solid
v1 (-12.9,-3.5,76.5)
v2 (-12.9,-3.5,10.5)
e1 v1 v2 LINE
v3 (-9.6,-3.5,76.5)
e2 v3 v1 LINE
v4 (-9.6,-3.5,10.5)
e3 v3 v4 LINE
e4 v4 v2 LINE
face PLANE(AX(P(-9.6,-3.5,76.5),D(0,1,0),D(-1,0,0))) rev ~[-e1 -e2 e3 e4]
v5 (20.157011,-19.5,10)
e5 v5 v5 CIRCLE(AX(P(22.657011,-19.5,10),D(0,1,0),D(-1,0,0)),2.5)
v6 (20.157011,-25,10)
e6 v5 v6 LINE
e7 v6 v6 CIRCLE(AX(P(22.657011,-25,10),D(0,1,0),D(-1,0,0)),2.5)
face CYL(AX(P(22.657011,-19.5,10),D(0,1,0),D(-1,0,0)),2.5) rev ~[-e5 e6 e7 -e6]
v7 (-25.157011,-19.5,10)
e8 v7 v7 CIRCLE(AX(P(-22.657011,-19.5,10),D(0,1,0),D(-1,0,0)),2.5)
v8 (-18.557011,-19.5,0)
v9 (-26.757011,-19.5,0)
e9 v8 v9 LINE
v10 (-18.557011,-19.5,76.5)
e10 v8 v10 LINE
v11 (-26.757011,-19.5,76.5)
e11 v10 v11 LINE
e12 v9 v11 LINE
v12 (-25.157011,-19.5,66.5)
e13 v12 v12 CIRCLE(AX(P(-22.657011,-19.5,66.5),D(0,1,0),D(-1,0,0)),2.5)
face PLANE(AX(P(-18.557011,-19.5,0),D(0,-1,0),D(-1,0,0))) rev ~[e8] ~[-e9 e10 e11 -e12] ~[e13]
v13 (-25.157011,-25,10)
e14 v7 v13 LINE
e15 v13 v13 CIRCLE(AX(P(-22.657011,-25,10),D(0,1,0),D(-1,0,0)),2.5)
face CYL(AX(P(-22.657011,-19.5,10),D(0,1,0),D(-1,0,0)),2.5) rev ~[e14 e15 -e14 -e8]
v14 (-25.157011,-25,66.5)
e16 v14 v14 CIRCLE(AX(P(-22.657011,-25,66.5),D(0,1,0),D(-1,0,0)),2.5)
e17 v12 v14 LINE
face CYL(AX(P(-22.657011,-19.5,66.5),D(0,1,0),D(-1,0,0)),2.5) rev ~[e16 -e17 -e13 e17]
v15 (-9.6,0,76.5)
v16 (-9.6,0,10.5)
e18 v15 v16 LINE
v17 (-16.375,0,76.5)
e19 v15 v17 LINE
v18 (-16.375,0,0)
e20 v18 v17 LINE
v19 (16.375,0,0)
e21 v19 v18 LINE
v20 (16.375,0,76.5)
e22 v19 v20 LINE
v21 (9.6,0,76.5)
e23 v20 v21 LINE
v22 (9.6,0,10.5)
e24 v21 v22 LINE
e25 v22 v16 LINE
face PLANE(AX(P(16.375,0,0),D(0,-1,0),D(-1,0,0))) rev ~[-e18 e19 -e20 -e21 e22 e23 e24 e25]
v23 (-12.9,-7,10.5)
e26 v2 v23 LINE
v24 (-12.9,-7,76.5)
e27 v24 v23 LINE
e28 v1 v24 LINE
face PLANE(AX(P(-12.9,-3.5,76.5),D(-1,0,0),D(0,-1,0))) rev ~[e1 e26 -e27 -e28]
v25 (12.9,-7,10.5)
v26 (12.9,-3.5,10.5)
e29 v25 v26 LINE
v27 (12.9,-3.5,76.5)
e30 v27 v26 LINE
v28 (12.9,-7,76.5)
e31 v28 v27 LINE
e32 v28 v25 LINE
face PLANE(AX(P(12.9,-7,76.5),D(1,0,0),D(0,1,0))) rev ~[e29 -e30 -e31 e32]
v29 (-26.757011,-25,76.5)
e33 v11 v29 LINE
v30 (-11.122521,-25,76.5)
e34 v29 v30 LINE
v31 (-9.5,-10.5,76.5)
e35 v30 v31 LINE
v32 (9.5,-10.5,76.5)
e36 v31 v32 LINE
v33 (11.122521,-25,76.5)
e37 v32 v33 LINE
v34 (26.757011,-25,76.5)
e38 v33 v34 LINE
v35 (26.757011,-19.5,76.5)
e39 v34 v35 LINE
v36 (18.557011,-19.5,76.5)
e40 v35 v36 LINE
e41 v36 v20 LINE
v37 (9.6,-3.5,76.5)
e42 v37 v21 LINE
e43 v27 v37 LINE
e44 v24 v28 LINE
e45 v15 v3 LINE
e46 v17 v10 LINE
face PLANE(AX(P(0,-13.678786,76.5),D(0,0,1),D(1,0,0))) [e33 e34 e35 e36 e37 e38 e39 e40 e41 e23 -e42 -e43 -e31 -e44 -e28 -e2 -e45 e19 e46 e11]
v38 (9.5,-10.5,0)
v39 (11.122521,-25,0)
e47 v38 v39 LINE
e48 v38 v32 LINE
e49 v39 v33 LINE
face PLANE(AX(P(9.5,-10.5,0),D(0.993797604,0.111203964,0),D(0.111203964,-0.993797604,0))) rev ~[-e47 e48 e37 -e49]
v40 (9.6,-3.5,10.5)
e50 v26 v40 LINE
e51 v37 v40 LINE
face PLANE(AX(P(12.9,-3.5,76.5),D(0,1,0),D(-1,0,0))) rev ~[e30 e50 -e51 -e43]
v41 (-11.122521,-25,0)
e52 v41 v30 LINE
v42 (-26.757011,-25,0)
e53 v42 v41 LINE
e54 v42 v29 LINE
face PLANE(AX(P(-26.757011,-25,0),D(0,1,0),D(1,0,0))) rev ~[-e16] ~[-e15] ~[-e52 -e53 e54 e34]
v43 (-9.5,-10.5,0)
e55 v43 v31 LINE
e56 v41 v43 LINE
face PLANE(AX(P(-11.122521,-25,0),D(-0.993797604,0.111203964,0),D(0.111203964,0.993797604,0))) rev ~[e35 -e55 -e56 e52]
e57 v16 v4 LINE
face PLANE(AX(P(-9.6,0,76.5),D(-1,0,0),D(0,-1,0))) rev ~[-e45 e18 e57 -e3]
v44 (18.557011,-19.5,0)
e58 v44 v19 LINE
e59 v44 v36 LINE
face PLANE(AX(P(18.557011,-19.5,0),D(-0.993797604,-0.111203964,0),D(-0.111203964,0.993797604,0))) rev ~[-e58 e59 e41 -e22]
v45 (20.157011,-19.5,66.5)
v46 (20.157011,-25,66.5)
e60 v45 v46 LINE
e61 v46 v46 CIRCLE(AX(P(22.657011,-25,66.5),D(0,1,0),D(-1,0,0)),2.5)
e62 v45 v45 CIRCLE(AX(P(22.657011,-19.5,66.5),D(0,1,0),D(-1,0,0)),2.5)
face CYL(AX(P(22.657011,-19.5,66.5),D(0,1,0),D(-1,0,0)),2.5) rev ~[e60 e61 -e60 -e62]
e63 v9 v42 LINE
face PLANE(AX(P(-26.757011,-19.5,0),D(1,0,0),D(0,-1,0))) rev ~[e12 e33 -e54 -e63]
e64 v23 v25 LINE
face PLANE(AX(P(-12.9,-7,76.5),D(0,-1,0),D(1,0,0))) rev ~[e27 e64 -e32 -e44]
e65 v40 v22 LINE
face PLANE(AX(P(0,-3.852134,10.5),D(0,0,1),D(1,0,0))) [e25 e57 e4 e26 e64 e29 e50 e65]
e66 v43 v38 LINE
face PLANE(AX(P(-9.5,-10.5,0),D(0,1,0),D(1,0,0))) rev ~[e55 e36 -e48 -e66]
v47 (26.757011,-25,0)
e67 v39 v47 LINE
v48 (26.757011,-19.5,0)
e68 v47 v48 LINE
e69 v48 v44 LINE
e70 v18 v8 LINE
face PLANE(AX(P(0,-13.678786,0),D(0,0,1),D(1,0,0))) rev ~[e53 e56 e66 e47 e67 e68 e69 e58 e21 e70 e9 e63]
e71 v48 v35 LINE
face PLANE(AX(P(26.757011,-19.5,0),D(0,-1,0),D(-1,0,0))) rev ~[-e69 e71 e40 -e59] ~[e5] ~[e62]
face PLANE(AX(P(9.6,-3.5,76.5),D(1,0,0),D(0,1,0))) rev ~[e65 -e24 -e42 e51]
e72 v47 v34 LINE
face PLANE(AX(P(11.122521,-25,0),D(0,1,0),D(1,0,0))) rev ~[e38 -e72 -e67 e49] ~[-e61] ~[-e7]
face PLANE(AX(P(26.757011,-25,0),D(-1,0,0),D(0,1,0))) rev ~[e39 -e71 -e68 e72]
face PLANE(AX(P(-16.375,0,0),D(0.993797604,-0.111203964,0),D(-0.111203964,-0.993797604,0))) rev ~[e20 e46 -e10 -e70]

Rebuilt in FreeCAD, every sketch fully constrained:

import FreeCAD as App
import Part
import Sketcher

V = App.Vector

doc = App.newDocument("Part")
body = doc.addObject("PartDesign::Body", "Body")

# Sketch on XY plane
sketch1 = body.newObject("Sketcher::SketchObject", "Sketch")
sketch1.AttachmentSupport = (doc.getObject("XY_Plane"), [""])
sketch1.MapMode = "FlatFace"
sketch1.addGeometry(Part.LineSegment(V(19, -20, 0), V(16, 0, 0)), False)
sketch1.addGeometry(Part.LineSegment(V(16, 0, 0), V(-16, 0, 0)), False)
sketch1.addGeometry(Part.LineSegment(V(-16, 0, 0), V(-19, -20, 0)), False)
sketch1.addGeometry(Part.LineSegment(V(-19, -20, 0), V(-27, -20, 0)), False)
sketch1.addGeometry(Part.LineSegment(V(-27, -20, 0), V(-27, -25, 0)), False)
sketch1.addGeometry(Part.LineSegment(V(-27, -25, 0), V(-11, -25, 0)), False)
sketch1.addGeometry(Part.LineSegment(V(-11, -25, 0), V(-10, -10, 0)), False)
sketch1.addGeometry(Part.LineSegment(V(-10, -10, 0), V(10, -10, 0)), False)
sketch1.addGeometry(Part.LineSegment(V(10, -10, 0), V(11, -25, 0)), False)
sketch1.addGeometry(Part.LineSegment(V(11, -25, 0), V(27, -25, 0)), False)
sketch1.addGeometry(Part.LineSegment(V(27, -25, 0), V(27, -20, 0)), False)
sketch1.addGeometry(Part.LineSegment(V(27, -20, 0), V(19, -20, 0)), False)
sketch1.addConstraint(Sketcher.Constraint("Coincident", 0, 2, 1, 1))
sketch1.addConstraint(Sketcher.Constraint("Coincident", 1, 2, 2, 1))
sketch1.addConstraint(Sketcher.Constraint("Coincident", 2, 2, 3, 1))
sketch1.addConstraint(Sketcher.Constraint("Coincident", 3, 2, 4, 1))
sketch1.addConstraint(Sketcher.Constraint("Coincident", 4, 2, 5, 1))
sketch1.addConstraint(Sketcher.Constraint("Coincident", 5, 2, 6, 1))
sketch1.addConstraint(Sketcher.Constraint("Coincident", 6, 2, 7, 1))
sketch1.addConstraint(Sketcher.Constraint("Coincident", 7, 2, 8, 1))
sketch1.addConstraint(Sketcher.Constraint("Coincident", 8, 2, 9, 1))
sketch1.addConstraint(Sketcher.Constraint("Coincident", 9, 2, 10, 1))
sketch1.addConstraint(Sketcher.Constraint("Coincident", 10, 2, 11, 1))
sketch1.addConstraint(Sketcher.Constraint("Coincident", 11, 2, 0, 1))
sketch1.addConstraint(Sketcher.Constraint("Horizontal", 1))
sketch1.addConstraint(Sketcher.Constraint("Horizontal", 3))
sketch1.addConstraint(Sketcher.Constraint("Vertical", 4))
sketch1.addConstraint(Sketcher.Constraint("Horizontal", 5))
sketch1.addConstraint(Sketcher.Constraint("Horizontal", 7))
sketch1.addConstraint(Sketcher.Constraint("Horizontal", 9))
sketch1.addConstraint(Sketcher.Constraint("Vertical", 10))
sketch1.addConstraint(Sketcher.Constraint("Horizontal", 11))
sketch1.addConstraint(Sketcher.Constraint("Symmetric", 0, 2, 1, 2, -1, 1))
sketch1.addConstraint(Sketcher.Constraint("Symmetric", 5, 2, 8, 2, -2))
sketch1.addConstraint(Sketcher.Constraint("Symmetric", 3, 2, 10, 2, -2))
sketch1.addConstraint(Sketcher.Constraint("Parallel", 2, 6))
sketch1.addConstraint(Sketcher.Constraint("Parallel", 0, 8))
sketch1.addConstraint(Sketcher.Constraint("Equal", 3, 11))
sketch1.addConstraint(Sketcher.Constraint("DistanceX", 7, 1, 7, 2, 19.0))
sketch1.addConstraint(Sketcher.Constraint("DistanceX", 3, 2, 3, 1, 8.2))
sketch1.addConstraint(Sketcher.Constraint("DistanceY", 4, 2, 4, 1, 5.5))
sketch1.addConstraint(Sketcher.Constraint("DistanceY", 4, 2, -1, 1, 25.0))
sketch1.addConstraint(Sketcher.Constraint("DistanceY", 2, 2, 6, 2, 9.0))
sketch1.addConstraint(Sketcher.Constraint("DistanceX", 1, 2, 1, 1, 32.75))
sketch1.addConstraint(Sketcher.Constraint("Distance", 0, 19.621702))
pad1 = body.newObject("PartDesign::Pad", "Pad")
pad1.Profile = sketch1
pad1.Length = 76.5

# Sketch on XY plane
sketch2 = body.newObject("Sketcher::SketchObject", "Sketch001")
sketch2.AttachmentSupport = (doc.getObject("XY_Plane"), [""])
sketch2.MapMode = "FlatFace"
sketch2.AttachmentOffset = App.Placement(V(0, 0, 76.5), App.Rotation())
sketch2.addGeometry(Part.LineSegment(V(9.6, 0, 0), V(-9.6, 0, 0)), False)
sketch2.addGeometry(Part.LineSegment(V(-9.6, 0, 0), V(-9.6, -3.5, 0)), False)
sketch2.addGeometry(Part.LineSegment(V(-9.6, -3.5, 0), V(-12.9, -3.5, 0)), False)
sketch2.addGeometry(Part.LineSegment(V(-12.9, -3.5, 0), V(-12.9, -7, 0)), False)
sketch2.addGeometry(Part.LineSegment(V(-12.9, -7, 0), V(12.9, -7, 0)), False)
sketch2.addGeometry(Part.LineSegment(V(12.9, -7, 0), V(12.9, -3.5, 0)), False)
sketch2.addGeometry(Part.LineSegment(V(12.9, -3.5, 0), V(9.6, -3.5, 0)), False)
sketch2.addGeometry(Part.LineSegment(V(9.6, -3.5, 0), V(9.6, 0, 0)), False)
sketch2.addConstraint(Sketcher.Constraint("Coincident", 0, 2, 1, 1))
sketch2.addConstraint(Sketcher.Constraint("Coincident", 1, 2, 2, 1))
sketch2.addConstraint(Sketcher.Constraint("Coincident", 2, 2, 3, 1))
sketch2.addConstraint(Sketcher.Constraint("Coincident", 3, 2, 4, 1))
sketch2.addConstraint(Sketcher.Constraint("Coincident", 4, 2, 5, 1))
sketch2.addConstraint(Sketcher.Constraint("Coincident", 5, 2, 6, 1))
sketch2.addConstraint(Sketcher.Constraint("Coincident", 6, 2, 7, 1))
sketch2.addConstraint(Sketcher.Constraint("Coincident", 7, 2, 0, 1))
sketch2.addConstraint(Sketcher.Constraint("Horizontal", 0))
sketch2.addConstraint(Sketcher.Constraint("Vertical", 1))
sketch2.addConstraint(Sketcher.Constraint("Horizontal", 2))
sketch2.addConstraint(Sketcher.Constraint("Vertical", 3))
sketch2.addConstraint(Sketcher.Constraint("Horizontal", 4))
sketch2.addConstraint(Sketcher.Constraint("Vertical", 5))
sketch2.addConstraint(Sketcher.Constraint("Horizontal", 6))
sketch2.addConstraint(Sketcher.Constraint("Vertical", 7))
sketch2.addConstraint(Sketcher.Constraint("Symmetric", 0, 2, 7, 2, -1, 1))
sketch2.addConstraint(Sketcher.Constraint("Symmetric", 2, 2, 5, 2, -2))
sketch2.addConstraint(Sketcher.Constraint("Equal", 1, 3))
sketch2.addConstraint(Sketcher.Constraint("DistanceX", 0, 2, 0, 1, 19.2))
sketch2.addConstraint(Sketcher.Constraint("DistanceX", 2, 2, 2, 1, 3.3))
sketch2.addConstraint(Sketcher.Constraint("DistanceY", 1, 2, 1, 1, 3.5))
pocket1 = body.newObject("PartDesign::Pocket", "Pocket")
pocket1.Profile = sketch2
pocket1.Length = 66

# Sketch on XZ plane
sketch3 = body.newObject("Sketcher::SketchObject", "Sketch002")
sketch3.AttachmentSupport = (doc.getObject("XZ_Plane"), [""])
sketch3.MapMode = "FlatFace"
sketch3.AttachmentOffset = App.Placement(V(0, 0, 19.5), App.Rotation())
sketch3.addGeometry(Part.Circle(V(-22.7, 10, 0), V(0, 0, 1), 2.5), False)
sketch3.addGeometry(Part.Circle(V(-22.7, 66.5, 0), V(0, 0, 1), 2.5), False)
sketch3.addGeometry(Part.Circle(V(22.7, 10, 0), V(0, 0, 1), 2.5), False)
sketch3.addGeometry(Part.Circle(V(22.7, 66.5, 0), V(0, 0, 1), 2.5), False)
sketch3.addConstraint(Sketcher.Constraint("Equal", 0, 1))
sketch3.addConstraint(Sketcher.Constraint("Equal", 1, 2))
sketch3.addConstraint(Sketcher.Constraint("Equal", 2, 3))
sketch3.addConstraint(Sketcher.Constraint("Symmetric", 0, 3, 2, 3, -2))
sketch3.addConstraint(Sketcher.Constraint("Symmetric", 1, 3, 3, 3, -2))
sketch3.addConstraint(Sketcher.Constraint("Vertical", 0, 3, 1, 3))
sketch3.addConstraint(Sketcher.Constraint("Diameter", 0, 5.0))
sketch3.addConstraint(Sketcher.Constraint("DistanceY", -1, 1, 0, 3, 10.0))
sketch3.addConstraint(Sketcher.Constraint("DistanceY", -1, 1, 1, 3, 66.5))
sketch3.addConstraint(Sketcher.Constraint("DistanceX", 0, 3, -1, 1, 22.657011))
pocket2 = body.newObject("PartDesign::Pocket", "Pocket001")
pocket2.Profile = sketch3
pocket2.Type = "ThroughAll"
pocket2.Reversed = True

doc.recompute()
